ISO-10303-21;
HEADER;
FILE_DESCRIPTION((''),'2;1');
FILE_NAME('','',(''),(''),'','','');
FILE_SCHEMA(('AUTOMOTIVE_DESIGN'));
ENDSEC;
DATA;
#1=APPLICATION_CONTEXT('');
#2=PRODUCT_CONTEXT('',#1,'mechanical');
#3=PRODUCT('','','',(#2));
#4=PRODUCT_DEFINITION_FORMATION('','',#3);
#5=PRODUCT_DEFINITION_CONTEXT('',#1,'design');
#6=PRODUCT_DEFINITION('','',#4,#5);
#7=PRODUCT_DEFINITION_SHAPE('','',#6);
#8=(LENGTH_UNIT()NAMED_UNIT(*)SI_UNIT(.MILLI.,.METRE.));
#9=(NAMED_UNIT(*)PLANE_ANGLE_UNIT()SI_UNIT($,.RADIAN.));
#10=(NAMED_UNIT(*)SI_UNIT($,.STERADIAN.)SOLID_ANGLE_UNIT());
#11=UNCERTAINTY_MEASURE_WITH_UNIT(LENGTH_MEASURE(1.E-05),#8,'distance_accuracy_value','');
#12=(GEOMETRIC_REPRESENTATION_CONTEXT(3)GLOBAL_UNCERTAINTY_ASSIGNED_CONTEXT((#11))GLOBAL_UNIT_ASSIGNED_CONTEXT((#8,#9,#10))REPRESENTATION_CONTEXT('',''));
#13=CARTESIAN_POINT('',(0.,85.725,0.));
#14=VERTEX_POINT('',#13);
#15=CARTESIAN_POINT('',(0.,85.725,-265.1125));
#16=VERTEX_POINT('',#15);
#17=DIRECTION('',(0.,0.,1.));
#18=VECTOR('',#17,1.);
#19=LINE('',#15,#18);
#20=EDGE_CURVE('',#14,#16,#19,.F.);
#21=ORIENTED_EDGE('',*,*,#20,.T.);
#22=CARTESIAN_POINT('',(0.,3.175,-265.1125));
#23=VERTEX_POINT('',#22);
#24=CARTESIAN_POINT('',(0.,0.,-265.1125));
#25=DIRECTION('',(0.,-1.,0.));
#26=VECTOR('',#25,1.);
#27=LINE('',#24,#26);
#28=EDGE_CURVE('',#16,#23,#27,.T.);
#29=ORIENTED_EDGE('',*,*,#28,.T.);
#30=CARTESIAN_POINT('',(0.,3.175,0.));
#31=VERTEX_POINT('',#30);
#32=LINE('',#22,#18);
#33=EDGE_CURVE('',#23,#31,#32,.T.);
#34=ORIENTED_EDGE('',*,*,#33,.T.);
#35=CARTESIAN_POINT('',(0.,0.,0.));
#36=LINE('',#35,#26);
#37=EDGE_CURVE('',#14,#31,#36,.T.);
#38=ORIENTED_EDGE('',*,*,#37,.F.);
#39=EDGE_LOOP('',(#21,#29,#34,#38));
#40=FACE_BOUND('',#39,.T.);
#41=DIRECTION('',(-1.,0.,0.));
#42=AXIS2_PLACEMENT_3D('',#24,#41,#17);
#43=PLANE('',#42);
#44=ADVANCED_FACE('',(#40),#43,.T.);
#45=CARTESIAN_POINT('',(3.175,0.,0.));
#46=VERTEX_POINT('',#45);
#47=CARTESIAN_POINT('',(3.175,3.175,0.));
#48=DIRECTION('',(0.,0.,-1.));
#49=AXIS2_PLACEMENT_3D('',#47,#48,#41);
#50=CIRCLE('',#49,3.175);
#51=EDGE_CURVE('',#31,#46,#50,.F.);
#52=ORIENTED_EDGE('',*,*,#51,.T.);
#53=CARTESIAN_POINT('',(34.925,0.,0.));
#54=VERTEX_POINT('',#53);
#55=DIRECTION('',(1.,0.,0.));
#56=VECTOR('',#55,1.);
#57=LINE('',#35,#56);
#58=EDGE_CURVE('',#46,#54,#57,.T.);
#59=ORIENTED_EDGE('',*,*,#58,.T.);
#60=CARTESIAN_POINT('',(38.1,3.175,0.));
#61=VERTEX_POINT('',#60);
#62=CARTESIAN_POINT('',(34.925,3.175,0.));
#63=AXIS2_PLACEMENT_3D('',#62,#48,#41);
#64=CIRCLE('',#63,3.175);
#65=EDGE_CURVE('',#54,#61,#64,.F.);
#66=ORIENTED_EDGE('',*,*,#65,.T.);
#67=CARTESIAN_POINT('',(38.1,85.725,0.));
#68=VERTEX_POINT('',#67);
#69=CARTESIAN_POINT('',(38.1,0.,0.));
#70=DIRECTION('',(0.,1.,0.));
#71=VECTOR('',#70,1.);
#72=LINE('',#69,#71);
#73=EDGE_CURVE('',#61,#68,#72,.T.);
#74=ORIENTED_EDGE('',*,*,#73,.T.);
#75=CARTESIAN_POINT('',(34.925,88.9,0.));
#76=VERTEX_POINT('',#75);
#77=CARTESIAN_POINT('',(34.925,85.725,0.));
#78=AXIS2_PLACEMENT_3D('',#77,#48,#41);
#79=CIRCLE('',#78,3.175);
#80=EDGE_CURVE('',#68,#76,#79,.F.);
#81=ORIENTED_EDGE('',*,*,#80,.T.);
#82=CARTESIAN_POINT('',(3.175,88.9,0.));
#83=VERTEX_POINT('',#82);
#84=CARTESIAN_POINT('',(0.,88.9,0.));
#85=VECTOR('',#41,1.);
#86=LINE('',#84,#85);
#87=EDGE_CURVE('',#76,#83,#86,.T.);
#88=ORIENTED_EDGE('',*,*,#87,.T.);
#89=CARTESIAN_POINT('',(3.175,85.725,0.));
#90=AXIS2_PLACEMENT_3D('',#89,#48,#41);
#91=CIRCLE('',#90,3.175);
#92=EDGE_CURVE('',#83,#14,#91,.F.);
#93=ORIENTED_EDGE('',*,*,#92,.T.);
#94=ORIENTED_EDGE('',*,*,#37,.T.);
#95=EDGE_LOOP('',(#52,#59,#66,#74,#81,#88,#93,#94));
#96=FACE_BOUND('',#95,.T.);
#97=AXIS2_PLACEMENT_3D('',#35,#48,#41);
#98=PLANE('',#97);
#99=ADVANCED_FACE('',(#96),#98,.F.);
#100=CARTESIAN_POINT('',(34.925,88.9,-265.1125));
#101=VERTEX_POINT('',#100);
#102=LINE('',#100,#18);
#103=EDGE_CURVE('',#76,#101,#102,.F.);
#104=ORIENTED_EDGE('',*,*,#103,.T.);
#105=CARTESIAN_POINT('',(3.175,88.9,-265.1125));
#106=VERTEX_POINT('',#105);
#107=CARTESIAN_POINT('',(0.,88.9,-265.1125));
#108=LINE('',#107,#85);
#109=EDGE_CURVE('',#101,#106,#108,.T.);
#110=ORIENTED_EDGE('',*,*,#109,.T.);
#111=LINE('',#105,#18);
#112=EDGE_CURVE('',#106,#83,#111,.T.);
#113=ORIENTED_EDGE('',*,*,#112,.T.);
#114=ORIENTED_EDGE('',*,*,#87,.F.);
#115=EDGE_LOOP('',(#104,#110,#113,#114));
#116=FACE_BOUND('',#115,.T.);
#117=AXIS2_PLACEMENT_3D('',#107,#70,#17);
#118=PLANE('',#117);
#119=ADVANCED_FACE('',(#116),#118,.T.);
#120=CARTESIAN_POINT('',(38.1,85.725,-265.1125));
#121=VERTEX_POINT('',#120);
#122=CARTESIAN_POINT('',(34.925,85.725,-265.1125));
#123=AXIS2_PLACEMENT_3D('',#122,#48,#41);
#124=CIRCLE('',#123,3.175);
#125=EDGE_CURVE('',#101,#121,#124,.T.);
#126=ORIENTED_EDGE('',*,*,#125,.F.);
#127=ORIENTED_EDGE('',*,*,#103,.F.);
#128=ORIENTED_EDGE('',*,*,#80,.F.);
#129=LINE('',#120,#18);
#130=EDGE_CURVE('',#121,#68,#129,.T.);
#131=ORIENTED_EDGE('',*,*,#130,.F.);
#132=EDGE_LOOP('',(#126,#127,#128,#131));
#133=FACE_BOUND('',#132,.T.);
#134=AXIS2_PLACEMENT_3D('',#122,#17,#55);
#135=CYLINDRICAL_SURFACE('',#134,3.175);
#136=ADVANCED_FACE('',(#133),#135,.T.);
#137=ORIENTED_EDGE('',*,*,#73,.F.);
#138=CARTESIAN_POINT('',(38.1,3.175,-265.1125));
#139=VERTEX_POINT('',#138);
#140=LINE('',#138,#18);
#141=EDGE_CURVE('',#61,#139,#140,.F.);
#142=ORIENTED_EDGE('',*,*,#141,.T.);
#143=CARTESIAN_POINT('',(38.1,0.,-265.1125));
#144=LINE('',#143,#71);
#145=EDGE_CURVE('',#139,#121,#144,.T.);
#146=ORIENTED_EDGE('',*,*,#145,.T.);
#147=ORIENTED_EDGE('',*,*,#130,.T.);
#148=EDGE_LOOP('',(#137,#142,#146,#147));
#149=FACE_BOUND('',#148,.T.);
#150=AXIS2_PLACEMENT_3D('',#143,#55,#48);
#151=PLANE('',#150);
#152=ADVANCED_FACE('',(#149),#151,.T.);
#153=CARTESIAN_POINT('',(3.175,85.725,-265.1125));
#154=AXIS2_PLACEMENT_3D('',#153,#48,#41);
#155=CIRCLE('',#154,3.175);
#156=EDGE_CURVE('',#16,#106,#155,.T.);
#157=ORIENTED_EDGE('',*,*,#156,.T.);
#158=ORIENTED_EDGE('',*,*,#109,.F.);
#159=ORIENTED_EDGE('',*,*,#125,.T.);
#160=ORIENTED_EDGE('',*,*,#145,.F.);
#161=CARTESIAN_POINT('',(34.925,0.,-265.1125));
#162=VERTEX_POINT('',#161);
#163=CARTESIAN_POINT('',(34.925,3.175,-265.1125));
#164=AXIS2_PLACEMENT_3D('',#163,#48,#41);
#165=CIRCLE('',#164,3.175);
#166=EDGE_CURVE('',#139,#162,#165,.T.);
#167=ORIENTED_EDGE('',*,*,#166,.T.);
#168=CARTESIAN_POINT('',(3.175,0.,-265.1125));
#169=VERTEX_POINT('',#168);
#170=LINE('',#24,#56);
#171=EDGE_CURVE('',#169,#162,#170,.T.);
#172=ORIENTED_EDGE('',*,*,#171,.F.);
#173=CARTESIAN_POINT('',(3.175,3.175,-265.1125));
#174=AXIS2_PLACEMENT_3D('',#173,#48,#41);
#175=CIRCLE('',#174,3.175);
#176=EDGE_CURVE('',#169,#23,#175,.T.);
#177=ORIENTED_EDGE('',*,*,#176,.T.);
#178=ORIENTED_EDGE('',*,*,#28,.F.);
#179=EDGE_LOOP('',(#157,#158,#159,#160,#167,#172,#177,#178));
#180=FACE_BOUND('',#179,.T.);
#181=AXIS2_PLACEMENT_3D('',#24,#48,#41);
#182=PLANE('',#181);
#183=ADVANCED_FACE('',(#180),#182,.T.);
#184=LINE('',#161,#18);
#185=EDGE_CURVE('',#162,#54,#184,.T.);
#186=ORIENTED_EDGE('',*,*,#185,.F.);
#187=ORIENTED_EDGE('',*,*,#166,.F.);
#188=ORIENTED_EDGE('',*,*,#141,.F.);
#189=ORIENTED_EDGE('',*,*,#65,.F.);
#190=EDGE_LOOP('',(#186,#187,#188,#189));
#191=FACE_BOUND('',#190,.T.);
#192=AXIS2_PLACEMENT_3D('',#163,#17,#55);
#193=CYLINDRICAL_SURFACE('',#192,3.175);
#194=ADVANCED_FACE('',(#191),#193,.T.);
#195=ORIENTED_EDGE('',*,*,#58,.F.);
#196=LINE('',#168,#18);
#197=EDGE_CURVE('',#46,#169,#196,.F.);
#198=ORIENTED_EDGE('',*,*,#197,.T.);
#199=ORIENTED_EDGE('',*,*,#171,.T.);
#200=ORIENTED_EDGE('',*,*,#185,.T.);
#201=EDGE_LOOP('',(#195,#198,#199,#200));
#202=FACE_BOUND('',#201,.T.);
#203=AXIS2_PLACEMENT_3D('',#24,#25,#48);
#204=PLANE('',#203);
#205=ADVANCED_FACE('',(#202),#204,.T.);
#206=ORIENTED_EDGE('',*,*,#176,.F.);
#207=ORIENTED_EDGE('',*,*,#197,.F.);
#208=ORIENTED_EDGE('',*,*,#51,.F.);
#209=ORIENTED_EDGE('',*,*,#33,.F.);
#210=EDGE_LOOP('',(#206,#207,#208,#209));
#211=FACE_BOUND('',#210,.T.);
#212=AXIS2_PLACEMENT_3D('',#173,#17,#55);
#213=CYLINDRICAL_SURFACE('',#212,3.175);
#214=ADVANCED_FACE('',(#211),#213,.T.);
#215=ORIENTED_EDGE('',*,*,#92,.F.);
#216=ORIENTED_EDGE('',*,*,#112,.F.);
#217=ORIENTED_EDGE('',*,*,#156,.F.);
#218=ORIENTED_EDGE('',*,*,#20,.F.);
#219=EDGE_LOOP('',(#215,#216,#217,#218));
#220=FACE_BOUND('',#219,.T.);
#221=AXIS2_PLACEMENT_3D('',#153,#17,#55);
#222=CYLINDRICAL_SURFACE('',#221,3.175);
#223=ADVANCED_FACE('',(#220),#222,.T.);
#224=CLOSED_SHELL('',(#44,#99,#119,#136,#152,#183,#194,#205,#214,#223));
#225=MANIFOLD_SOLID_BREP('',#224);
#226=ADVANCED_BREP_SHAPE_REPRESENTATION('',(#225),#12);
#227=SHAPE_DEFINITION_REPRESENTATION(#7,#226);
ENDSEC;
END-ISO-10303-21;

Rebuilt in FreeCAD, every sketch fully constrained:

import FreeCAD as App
import Part
import Sketcher
from FreeCAD import Vector
Q = App.Units.Quantity


def edges_at(feature, points):
    """Names of the edges that pass closest to the given points."""
    edges = feature.Shape.Edges
    near = lambda p: min(range(len(edges)), key=lambda i: edges[i].distToShape(Part.Vertex(*p))[0])
    return sorted({f"Edge{near(p) + 1}" for p in points})


def add_polygon(sketch, points):
    """Adds a closed chain of lines whose ends are joined by coincident constraints."""
    first, n = sketch.GeometryCount, len(points)
    for a, b in zip(points, points[1:] + points[:1]):
        sketch.addGeometry(Part.LineSegment(App.Vector(*a, 0), App.Vector(*b, 0)), False)
    for i in range(n):
        sketch.addConstraint(Sketcher.Constraint("Coincident", first + i, 2, first + (i + 1) % n, 1))

doc = App.newDocument("Part")
body = doc.addObject("PartDesign::Body", "Body")

# Sketch on XY plane
sketch1 = doc.addObject("Sketcher::SketchObject", "Sketch")
body.addObject(sketch1)
sketch1.AttachmentSupport = (doc.XY_Plane, [""])
sketch1.MapMode = "FlatFace"
add_polygon(sketch1, [(0, 89), (0, 0), (38, 0), (38, 89)])  # lines 0-3
sketch1.addConstraint([
    Sketcher.Constraint("Vertical", 0),
    Sketcher.Constraint("Horizontal", 1),
    Sketcher.Constraint("Vertical", 2),
    Sketcher.Constraint("Horizontal", 3),
    Sketcher.Constraint("Coincident", 0, 2, -1, 1),
    Sketcher.Constraint("DistanceX", 1, 1, 1, 2, Q("1.5 in")),
    Sketcher.Constraint("DistanceY", 0, 2, 0, 1, Q("3.5 in")),
])
pad1 = doc.addObject("PartDesign::Pad", "Pad")
body.addObject(pad1)
pad1.Profile = sketch1
pad1.Length = Q("10.4375 in")
pad1.Reversed = True
doc.recompute()

fillet = doc.addObject("PartDesign::Fillet", "Fillet")
body.addObject(fillet)
fillet.Base = (pad1, edges_at(pad1, [
    (0, 88.9, -132.556),
    (38.1, 88.9, -132.556),
    (38.1, 0, -132.556),
    (0, 0, -132.556),
]))
fillet.Radius = Q("0.125 in")

doc.recompute()
